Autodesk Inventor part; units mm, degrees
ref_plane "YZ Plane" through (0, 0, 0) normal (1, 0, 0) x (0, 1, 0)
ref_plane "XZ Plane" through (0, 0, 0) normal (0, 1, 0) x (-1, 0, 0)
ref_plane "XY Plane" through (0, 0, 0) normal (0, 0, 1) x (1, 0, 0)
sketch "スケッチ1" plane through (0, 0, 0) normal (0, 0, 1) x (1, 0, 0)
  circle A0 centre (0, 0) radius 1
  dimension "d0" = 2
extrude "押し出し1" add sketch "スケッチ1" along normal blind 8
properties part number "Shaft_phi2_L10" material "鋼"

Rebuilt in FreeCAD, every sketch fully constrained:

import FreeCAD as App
import Part
import Sketcher

V = App.Vector
Q = App.Units.Quantity

doc = App.newDocument("Part")
body = doc.addObject("PartDesign::Body", "Body")

sketch1 = body.newObject("Sketcher::SketchObject", "Sketch")
sketch1.AttachmentSupport = (doc.getObject("XY_Plane"), [""])
sketch1.MapMode = "FlatFace"
sketch1.addGeometry(Part.Circle(V(0, 0, 0), V(0, 0, 1), 1), False)
sketch1.addConstraint([
    Sketcher.Constraint("Coincident", 0, 3, -1, 1),
    Sketcher.Constraint("Diameter", 0, Q("2 mm")),
])
pad1 = body.newObject("PartDesign::Pad", "Pad")
pad1.Profile = sketch1
pad1.Length = 8

doc.recompute()
